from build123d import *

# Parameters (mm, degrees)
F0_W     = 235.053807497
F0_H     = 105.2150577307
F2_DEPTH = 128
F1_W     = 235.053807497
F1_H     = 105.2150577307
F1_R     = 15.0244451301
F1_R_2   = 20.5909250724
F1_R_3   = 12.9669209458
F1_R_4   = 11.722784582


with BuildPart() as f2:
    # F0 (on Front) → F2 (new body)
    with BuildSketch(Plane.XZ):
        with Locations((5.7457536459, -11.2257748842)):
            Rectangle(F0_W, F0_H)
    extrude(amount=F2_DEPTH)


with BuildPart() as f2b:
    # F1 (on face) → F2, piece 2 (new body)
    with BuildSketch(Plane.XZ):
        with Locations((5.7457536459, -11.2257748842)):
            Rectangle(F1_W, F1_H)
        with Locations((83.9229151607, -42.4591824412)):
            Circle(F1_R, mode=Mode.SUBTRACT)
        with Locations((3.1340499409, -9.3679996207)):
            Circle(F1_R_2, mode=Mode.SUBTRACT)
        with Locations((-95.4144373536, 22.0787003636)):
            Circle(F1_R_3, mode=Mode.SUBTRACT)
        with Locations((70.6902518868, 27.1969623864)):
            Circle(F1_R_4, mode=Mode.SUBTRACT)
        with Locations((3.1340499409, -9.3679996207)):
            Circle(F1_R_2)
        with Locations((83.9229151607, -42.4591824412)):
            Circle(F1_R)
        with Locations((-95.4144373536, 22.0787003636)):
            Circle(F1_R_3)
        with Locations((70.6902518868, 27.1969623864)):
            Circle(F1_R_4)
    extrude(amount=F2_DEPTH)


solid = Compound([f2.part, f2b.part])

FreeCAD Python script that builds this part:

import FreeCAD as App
import Part
import Sketcher

V = App.Vector
Q = App.Units.Quantity

doc = App.newDocument("Part")
params = doc.addObject("Spreadsheet::Sheet", "Params")
for row, (alias, value) in enumerate([
    ("pad1_length", "128 mm"),
    ("pad2_length", "128 mm"),
], start=1):
    params.set(f"A{row}", alias)
    params.set(f"B{row}", "=" + value)
    params.setAlias(f"B{row}", alias)

body = doc.addObject("PartDesign::Body", "Body")

sketch1 = body.newObject("Sketcher::SketchObject", "Sketch")
sketch1.AttachmentSupport = (doc.getObject("XZ_Plane"), [""])
sketch1.MapMode = "FlatFace"
sketch1.addGeometry([
    Part.LineSegment(V(-111.78115, 41.381754, 0), V(-111.78115, -63.833304, 0)),
    Part.LineSegment(V(-111.78115, -63.833304, 0), V(123.272657, -63.833304, 0)),
    Part.LineSegment(V(123.272657, -63.833304, 0), V(123.272657, 41.381754, 0)),
    Part.LineSegment(V(123.272657, 41.381754, 0), V(-111.78115, 41.381754, 0)),
], False)
sketch1.addConstraint([
    Sketcher.Constraint("Coincident", 0, 2, 1, 1),
    Sketcher.Constraint("Coincident", 1, 2, 2, 1),
    Sketcher.Constraint("Coincident", 2, 2, 3, 1),
    Sketcher.Constraint("Coincident", 3, 2, 0, 1),
    Sketcher.Constraint("Vertical", 0),
    Sketcher.Constraint("Horizontal", 1),
    Sketcher.Constraint("Vertical", 2),
    Sketcher.Constraint("Horizontal", 3),
    Sketcher.Constraint("DistanceX", 1, 1, 1, 2, Q("235.053807 mm")),
    Sketcher.Constraint("DistanceY", 0, 2, 0, 1, Q("105.215058 mm")),
    Sketcher.Constraint("DistanceX", 0, 2, -1, 1, Q("111.78115 mm")),
    Sketcher.Constraint("DistanceY", 0, 2, -1, 1, Q("63.833304 mm")),
])
pad1 = body.newObject("PartDesign::Pad", "Pad")
pad1.Profile = sketch1
pad1.setExpression("Length", "Params.pad1_length")
body2 = doc.addObject("PartDesign::Body", "Body001")

sketch2 = body2.newObject("Sketcher::SketchObject", "Sketch001")
sketch2.AttachmentSupport = (doc.getObject("XZ_Plane001"), [""])
sketch2.MapMode = "FlatFace"
sketch2.addGeometry([
    Part.LineSegment(V(-111.78115, 41.381754, 0), V(-111.78115, -63.833304, 0)),
    Part.LineSegment(V(-111.78115, -63.833304, 0), V(123.272657, -63.833304, 0)),
    Part.LineSegment(V(123.272657, -63.833304, 0), V(123.272657, 41.381754, 0)),
    Part.LineSegment(V(123.272657, 41.381754, 0), V(-111.78115, 41.381754, 0)),
], False)
sketch2.addConstraint([
    Sketcher.Constraint("Coincident", 0, 2, 1, 1),
    Sketcher.Constraint("Coincident", 1, 2, 2, 1),
    Sketcher.Constraint("Coincident", 2, 2, 3, 1),
    Sketcher.Constraint("Coincident", 3, 2, 0, 1),
    Sketcher.Constraint("Vertical", 0),
    Sketcher.Constraint("Horizontal", 1),
    Sketcher.Constraint("Vertical", 2),
    Sketcher.Constraint("Horizontal", 3),
    Sketcher.Constraint("DistanceX", 1, 1, 1, 2, Q("235.053807 mm")),
    Sketcher.Constraint("DistanceY", 0, 2, 0, 1, Q("105.215058 mm")),
    Sketcher.Constraint("DistanceX", 0, 2, -1, 1, Q("111.78115 mm")),
    Sketcher.Constraint("DistanceY", 0, 2, -1, 1, Q("63.833304 mm")),
])
pad2 = body2.newObject("PartDesign::Pad", "Pad001")
pad2.Profile = sketch2
pad2.setExpression("Length", "Params.pad2_length")

doc.recompute()
